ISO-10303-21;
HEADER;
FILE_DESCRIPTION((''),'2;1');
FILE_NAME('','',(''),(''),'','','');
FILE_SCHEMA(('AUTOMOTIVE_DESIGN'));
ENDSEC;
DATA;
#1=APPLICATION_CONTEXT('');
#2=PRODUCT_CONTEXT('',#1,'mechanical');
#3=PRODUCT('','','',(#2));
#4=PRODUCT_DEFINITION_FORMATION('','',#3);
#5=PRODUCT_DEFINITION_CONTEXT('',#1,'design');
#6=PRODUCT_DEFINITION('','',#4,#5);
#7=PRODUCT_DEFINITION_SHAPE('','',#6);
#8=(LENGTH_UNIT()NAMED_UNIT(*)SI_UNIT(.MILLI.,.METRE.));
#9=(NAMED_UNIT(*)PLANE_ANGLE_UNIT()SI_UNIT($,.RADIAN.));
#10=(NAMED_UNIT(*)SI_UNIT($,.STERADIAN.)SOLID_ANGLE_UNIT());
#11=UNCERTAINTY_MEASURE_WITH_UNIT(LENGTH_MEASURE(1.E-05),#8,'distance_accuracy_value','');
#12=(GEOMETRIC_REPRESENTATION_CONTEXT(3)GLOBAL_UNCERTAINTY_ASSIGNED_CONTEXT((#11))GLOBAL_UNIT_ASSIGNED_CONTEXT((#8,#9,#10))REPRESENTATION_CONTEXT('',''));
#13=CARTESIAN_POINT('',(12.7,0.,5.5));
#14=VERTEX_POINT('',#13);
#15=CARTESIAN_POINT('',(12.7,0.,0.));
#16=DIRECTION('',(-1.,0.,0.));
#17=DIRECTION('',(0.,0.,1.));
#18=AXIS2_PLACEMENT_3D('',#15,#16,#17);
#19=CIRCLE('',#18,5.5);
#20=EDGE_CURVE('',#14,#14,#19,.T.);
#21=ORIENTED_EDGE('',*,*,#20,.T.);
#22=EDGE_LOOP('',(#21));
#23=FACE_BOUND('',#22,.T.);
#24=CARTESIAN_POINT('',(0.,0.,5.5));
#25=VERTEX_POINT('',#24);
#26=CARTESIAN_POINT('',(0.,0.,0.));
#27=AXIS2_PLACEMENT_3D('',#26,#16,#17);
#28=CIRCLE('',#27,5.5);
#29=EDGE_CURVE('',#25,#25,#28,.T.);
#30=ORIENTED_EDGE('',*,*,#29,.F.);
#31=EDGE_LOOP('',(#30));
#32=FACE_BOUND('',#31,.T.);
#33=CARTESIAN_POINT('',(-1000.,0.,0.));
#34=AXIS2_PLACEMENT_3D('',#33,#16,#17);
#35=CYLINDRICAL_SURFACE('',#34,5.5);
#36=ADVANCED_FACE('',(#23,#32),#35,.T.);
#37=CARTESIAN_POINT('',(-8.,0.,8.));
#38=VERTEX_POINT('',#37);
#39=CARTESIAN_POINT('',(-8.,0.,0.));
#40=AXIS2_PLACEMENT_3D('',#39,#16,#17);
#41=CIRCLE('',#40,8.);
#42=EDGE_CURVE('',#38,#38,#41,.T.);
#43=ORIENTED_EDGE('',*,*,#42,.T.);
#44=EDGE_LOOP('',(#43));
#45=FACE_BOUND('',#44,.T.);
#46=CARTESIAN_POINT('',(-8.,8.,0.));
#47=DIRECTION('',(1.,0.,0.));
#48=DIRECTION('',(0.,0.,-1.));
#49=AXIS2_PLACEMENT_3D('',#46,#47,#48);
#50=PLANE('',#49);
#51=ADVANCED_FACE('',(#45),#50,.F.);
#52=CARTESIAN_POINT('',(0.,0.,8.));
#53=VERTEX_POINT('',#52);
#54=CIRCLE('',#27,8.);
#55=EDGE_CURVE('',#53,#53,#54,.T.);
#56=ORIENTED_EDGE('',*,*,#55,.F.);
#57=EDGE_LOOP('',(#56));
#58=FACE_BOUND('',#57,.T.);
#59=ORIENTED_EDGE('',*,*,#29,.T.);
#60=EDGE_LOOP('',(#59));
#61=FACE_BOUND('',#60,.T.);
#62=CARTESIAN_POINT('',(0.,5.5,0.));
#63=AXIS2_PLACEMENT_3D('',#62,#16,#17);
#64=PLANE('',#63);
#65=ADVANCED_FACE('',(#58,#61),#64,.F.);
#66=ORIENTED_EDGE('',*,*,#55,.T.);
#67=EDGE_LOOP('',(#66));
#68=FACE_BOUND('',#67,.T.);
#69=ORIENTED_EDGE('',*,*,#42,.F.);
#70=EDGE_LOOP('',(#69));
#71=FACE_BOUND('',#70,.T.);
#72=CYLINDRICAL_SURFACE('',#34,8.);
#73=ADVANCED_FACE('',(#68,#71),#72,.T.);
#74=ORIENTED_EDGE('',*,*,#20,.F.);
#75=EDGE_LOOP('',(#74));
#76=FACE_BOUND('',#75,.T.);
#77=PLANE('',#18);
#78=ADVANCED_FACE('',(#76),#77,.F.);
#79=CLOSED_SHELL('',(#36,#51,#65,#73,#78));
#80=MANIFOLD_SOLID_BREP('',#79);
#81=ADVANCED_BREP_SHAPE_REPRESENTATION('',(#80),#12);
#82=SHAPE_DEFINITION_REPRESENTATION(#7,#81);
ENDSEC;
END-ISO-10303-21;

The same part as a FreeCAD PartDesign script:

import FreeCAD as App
import Part
import Sketcher
from FreeCAD import Vector

doc = App.newDocument("Part")
body = doc.addObject("PartDesign::Body", "Body")

# Sketch on XY plane
sketch1 = body.newObject("Sketcher::SketchObject", "Sketch")
sketch1.AttachmentSupport = (doc.getObject("XY_Plane"), [""])
sketch1.MapMode = "FlatFace"
sketch1.addGeometry([
    Part.LineSegment(Vector(12.7, 0, 0), Vector(12.7, 5.5, 0)),  # 0
    Part.LineSegment(Vector(12.7, 5.5, 0), Vector(0, 5.5, 0)),  # 1
    Part.LineSegment(Vector(0, 5.5, 0), Vector(0, 8, 0)),  # 2
    Part.LineSegment(Vector(0, 8, 0), Vector(-8, 8, 0)),  # 3
    Part.LineSegment(Vector(-8, 8, 0), Vector(-8, 0, 0)),  # 4
    Part.LineSegment(Vector(-8, 0, 0), Vector(12.7, 0, 0)),  # 5
], False)
sketch1.addConstraint([
    Sketcher.Constraint("Coincident", 0, 2, 1, 1),
    Sketcher.Constraint("Coincident", 1, 2, 2, 1),
    Sketcher.Constraint("Coincident", 2, 2, 3, 1),
    Sketcher.Constraint("Coincident", 3, 2, 4, 1),
    Sketcher.Constraint("Coincident", 4, 2, 5, 1),
    Sketcher.Constraint("Coincident", 5, 2, 0, 1),
    Sketcher.Constraint("Vertical", 0),
    Sketcher.Constraint("Horizontal", 1),
    Sketcher.Constraint("Vertical", 2),
    Sketcher.Constraint("Horizontal", 3),
    Sketcher.Constraint("Vertical", 4),
    Sketcher.Constraint("Horizontal", 5),
    Sketcher.Constraint("PointOnObject", 1, 2, -2),
    Sketcher.Constraint("PointOnObject", 4, 2, -1),
    Sketcher.Constraint("Equal", 3, 4),
    Sketcher.Constraint("DistanceX", 3, 2, 3, 1, 8.0),
    Sketcher.Constraint("DistanceX", 1, 2, 1, 1, 12.7),
    Sketcher.Constraint("DistanceY", 0, 1, 0, 2, 5.5),
])
revolution = body.newObject("PartDesign::Revolution", "Revolution")
revolution.Profile = sketch1
revolution.ReferenceAxis = (sketch1, ["H_Axis"])
revolution.Angle = 360

doc.recompute()
